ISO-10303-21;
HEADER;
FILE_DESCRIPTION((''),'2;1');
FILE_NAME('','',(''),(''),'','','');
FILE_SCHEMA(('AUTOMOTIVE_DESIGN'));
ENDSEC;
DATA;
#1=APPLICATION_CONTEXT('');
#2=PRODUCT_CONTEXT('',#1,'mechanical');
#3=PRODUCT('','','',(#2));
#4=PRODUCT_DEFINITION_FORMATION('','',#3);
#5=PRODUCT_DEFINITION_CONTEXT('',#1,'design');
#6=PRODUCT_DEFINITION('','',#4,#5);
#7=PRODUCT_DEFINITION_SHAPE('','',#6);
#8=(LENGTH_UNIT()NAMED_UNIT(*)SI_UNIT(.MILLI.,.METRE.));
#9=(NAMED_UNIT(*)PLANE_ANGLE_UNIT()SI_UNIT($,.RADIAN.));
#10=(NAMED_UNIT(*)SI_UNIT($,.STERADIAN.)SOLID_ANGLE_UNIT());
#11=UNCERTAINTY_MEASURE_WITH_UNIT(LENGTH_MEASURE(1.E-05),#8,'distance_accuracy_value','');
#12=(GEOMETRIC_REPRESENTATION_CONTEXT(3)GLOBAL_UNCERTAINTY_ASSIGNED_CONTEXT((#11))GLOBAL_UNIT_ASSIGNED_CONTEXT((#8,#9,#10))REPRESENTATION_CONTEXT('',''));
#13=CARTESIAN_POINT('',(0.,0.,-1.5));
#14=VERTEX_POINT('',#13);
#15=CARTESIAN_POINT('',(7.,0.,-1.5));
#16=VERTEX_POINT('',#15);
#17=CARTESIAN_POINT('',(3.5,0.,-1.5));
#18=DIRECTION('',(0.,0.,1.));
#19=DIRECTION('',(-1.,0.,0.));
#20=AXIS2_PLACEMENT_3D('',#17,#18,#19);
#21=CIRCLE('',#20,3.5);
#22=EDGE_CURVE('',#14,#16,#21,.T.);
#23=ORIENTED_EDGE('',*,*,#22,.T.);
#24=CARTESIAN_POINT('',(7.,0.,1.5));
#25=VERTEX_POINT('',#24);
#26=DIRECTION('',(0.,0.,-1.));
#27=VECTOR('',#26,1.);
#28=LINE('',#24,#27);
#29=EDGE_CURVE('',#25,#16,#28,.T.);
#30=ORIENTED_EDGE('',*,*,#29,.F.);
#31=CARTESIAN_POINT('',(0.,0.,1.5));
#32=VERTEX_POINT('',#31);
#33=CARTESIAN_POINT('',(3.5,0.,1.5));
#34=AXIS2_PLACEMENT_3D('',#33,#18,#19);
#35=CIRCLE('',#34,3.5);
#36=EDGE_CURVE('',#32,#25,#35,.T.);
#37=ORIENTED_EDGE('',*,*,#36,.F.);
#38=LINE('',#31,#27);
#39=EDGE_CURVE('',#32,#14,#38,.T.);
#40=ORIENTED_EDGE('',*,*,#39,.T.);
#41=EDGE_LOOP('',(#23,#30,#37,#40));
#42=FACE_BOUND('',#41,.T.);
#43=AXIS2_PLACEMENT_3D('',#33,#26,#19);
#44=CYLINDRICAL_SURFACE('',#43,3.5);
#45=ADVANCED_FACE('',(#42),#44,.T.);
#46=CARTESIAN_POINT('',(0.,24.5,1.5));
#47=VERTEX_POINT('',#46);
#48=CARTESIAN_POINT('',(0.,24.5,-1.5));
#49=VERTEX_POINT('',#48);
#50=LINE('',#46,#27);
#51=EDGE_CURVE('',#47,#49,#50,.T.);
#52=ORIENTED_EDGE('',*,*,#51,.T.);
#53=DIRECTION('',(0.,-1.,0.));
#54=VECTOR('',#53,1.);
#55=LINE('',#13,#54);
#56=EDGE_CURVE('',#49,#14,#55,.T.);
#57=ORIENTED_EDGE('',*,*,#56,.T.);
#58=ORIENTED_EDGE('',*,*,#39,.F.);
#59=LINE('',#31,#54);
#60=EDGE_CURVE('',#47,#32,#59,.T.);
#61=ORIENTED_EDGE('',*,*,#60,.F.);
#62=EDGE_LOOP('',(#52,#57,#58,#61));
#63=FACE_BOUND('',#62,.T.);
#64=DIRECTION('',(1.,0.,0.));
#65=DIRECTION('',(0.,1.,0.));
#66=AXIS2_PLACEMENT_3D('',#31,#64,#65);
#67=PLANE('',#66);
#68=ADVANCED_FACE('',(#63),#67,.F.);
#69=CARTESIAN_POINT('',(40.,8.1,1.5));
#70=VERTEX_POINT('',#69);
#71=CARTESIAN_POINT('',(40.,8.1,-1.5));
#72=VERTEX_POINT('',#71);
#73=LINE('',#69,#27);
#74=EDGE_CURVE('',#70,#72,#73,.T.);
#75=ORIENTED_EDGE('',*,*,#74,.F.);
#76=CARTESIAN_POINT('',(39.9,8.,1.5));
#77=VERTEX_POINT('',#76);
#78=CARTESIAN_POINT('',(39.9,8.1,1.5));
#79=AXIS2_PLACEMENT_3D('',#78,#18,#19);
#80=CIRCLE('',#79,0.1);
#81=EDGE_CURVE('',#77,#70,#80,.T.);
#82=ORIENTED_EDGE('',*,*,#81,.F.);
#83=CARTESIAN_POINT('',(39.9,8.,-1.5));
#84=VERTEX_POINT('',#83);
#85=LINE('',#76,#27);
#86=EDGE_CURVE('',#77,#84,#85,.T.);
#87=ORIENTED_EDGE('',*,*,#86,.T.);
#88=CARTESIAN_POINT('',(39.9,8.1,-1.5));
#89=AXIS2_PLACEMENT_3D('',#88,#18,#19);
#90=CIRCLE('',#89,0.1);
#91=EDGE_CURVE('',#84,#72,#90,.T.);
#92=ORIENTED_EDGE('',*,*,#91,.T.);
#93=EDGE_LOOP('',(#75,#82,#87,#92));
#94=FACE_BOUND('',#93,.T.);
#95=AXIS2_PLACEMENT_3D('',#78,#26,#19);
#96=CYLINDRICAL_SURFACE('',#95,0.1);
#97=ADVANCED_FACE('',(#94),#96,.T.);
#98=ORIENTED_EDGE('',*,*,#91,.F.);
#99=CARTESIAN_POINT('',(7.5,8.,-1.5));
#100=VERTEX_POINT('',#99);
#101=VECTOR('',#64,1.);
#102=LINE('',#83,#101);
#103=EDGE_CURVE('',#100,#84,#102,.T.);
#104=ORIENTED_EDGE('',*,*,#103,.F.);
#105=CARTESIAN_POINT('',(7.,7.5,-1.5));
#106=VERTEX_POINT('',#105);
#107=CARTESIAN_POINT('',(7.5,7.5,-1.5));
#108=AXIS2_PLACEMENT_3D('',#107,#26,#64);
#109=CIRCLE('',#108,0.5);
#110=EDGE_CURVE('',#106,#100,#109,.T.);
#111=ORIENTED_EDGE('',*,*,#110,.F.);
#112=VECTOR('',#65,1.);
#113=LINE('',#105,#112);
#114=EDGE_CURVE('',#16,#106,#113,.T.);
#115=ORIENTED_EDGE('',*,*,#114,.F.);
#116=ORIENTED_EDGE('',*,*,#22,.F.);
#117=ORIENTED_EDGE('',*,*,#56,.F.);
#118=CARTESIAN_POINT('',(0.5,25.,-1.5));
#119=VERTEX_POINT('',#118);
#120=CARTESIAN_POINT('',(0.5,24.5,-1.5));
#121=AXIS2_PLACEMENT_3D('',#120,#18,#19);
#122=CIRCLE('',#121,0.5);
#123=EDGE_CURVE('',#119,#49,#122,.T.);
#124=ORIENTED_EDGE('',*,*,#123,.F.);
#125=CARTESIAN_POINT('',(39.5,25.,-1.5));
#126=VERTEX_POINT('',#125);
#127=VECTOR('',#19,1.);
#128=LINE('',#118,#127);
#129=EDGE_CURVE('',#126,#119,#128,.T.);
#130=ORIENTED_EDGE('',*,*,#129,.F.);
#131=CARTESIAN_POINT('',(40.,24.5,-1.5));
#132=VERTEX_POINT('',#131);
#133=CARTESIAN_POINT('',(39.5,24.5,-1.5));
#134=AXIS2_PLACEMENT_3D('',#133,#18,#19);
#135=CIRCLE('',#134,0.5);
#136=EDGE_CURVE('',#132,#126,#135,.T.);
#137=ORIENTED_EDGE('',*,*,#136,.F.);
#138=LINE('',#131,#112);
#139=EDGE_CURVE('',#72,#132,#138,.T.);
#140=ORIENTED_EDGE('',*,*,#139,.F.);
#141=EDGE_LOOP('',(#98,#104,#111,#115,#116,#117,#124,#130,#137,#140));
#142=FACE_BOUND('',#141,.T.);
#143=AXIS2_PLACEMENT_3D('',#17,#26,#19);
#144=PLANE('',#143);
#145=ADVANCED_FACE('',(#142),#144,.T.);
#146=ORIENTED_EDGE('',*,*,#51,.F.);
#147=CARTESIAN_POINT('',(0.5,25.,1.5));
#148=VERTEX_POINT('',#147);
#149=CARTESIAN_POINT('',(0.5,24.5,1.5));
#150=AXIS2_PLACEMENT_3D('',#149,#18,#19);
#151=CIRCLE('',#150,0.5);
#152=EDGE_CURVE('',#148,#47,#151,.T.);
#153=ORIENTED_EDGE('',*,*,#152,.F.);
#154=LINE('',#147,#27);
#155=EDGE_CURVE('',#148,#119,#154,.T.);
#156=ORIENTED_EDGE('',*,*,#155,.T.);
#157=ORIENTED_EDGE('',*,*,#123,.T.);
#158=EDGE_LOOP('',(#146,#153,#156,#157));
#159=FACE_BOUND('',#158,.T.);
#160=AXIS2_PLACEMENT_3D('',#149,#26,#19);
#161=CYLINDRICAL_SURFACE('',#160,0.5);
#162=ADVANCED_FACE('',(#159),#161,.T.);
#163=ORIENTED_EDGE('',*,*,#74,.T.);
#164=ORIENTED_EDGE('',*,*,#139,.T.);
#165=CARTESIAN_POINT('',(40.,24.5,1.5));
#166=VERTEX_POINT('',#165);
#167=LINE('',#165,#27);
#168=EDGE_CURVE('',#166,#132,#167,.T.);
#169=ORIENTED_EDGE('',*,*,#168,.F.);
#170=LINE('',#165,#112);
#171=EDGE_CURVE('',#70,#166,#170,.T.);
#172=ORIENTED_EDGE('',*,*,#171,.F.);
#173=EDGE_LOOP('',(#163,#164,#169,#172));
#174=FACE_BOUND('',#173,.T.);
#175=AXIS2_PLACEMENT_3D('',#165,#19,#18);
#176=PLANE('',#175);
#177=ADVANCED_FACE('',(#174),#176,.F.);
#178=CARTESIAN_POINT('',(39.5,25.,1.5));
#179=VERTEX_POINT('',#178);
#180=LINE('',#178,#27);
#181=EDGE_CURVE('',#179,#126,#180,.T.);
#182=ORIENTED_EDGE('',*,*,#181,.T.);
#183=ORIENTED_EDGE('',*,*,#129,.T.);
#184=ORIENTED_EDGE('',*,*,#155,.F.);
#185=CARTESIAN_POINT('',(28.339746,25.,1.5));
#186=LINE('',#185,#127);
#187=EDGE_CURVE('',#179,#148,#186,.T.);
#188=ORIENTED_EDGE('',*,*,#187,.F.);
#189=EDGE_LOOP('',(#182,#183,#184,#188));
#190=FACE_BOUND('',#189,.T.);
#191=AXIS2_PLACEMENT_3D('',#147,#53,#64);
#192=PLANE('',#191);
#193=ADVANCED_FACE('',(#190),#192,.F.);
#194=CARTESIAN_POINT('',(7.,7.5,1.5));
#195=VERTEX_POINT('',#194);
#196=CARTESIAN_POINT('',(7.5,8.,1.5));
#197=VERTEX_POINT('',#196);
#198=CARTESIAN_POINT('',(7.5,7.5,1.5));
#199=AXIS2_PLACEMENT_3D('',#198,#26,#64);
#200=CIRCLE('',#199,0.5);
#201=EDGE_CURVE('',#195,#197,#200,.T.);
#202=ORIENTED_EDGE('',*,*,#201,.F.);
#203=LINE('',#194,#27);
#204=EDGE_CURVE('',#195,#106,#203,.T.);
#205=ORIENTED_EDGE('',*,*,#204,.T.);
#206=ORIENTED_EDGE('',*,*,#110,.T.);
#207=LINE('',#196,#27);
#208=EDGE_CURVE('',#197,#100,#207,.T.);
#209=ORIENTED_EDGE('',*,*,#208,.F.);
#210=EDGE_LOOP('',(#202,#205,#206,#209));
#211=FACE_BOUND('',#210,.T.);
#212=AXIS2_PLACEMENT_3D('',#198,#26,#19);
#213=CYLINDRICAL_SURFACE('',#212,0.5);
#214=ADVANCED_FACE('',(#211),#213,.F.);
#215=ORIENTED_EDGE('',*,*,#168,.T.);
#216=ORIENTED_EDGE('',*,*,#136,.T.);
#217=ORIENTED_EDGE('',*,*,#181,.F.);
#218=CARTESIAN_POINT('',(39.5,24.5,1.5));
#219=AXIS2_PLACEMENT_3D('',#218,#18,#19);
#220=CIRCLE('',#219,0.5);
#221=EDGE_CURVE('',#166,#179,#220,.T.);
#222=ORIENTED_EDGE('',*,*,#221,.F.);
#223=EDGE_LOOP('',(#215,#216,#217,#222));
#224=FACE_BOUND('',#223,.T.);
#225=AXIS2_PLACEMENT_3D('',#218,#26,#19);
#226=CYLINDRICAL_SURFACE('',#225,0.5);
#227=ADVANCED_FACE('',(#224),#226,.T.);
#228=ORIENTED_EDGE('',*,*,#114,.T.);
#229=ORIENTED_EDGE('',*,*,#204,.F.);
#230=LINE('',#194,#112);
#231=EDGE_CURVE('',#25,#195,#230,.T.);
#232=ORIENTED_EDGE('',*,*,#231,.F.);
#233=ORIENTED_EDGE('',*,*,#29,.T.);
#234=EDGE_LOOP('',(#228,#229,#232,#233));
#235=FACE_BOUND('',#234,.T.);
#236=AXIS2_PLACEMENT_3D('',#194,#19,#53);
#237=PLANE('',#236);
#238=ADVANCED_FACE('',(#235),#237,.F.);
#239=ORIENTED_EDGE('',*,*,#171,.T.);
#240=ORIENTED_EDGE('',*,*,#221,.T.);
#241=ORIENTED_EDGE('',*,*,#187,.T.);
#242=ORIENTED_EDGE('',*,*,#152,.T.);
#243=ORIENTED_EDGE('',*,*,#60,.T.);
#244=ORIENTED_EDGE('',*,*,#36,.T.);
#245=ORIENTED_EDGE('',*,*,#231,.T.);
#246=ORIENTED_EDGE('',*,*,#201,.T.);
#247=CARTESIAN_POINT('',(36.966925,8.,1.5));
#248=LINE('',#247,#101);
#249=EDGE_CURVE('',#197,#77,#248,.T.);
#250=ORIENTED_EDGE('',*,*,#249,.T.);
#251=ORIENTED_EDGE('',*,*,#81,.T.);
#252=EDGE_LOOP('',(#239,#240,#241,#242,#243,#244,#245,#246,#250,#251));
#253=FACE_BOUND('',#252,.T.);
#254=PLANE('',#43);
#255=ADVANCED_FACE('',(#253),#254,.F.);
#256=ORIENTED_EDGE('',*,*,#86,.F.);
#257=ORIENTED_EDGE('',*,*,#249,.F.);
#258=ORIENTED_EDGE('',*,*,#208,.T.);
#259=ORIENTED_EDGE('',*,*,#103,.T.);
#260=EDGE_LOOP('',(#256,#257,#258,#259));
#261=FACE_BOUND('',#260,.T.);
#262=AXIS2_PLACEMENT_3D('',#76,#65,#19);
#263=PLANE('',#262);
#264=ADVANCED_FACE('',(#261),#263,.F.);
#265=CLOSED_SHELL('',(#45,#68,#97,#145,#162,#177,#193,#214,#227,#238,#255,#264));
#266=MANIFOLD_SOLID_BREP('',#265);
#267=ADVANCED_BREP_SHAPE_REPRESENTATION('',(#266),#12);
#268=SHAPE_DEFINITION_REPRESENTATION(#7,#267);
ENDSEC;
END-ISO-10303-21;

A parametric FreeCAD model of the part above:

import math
import FreeCAD as App
import Part
import Sketcher

V = App.Vector
Q = App.Units.Quantity

doc = App.newDocument("Part")
body = doc.addObject("PartDesign::Body", "Body")

# Sketch on XY plane
sketch1 = body.newObject("Sketcher::SketchObject", "Sketch")
sketch1.AttachmentSupport = (doc.getObject("XY_Plane"), [""])
sketch1.MapMode = "FlatFace"
sketch1.addGeometry([
    Part.LineSegment(V(0, 24.5, 0), V(0, 0, 0)),  # 0
    Part.ArcOfCircle(Part.Circle(V(3.5, 0, 0), V(0, 0, 1), 3.5), math.radians(180), math.radians(360)),  # 1
    Part.LineSegment(V(7, 0, 0), V(7, 7.5, 0)),  # 2
    Part.ArcOfCircle(Part.Circle(V(7.5, 7.5, 0), V(0, 0, 1), 0.5), math.radians(90), math.radians(180)),  # 3
    Part.LineSegment(V(7.5, 8, 0), V(39.9, 8, 0)),  # 4
    Part.ArcOfCircle(Part.Circle(V(39.9, 8.1, 0), V(0, 0, 1), 0.1), math.radians(-90), math.radians(0)),  # 5
    Part.LineSegment(V(40, 8.1, 0), V(40, 24.5, 0)),  # 6
    Part.ArcOfCircle(Part.Circle(V(39.5, 24.5, 0), V(0, 0, 1), 0.5), math.radians(0), math.radians(90)),  # 7
    Part.LineSegment(V(39.5, 25, 0), V(0.5, 25, 0)),  # 8
    Part.ArcOfCircle(Part.Circle(V(0.5, 24.5, 0), V(0, 0, 1), 0.5), math.radians(90), math.radians(180)),  # 9
], False)
sketch1.addConstraint([
    Sketcher.Constraint("Tangent", 0, 2, 1, 1),
    Sketcher.Constraint("Tangent", 1, 2, 2, 1),
    Sketcher.Constraint("Tangent", 2, 2, 3, 2),
    Sketcher.Constraint("Tangent", 3, 1, 4, 1),
    Sketcher.Constraint("Tangent", 4, 2, 5, 1),
    Sketcher.Constraint("Tangent", 5, 2, 6, 1),
    Sketcher.Constraint("Tangent", 6, 2, 7, 1),
    Sketcher.Constraint("Tangent", 7, 2, 8, 1),
    Sketcher.Constraint("Tangent", 8, 2, 9, 1),
    Sketcher.Constraint("Tangent", 9, 2, 0, 1),
    Sketcher.Constraint("Vertical", 0),
    Sketcher.Constraint("Vertical", 2),
    Sketcher.Constraint("Horizontal", 4),
    Sketcher.Constraint("Vertical", 6),
    Sketcher.Constraint("Horizontal", 8),
    Sketcher.Constraint("Coincident", 0, 2, -1, 1),
    Sketcher.Constraint("Equal", 3, 7),
    Sketcher.Constraint("Equal", 7, 9),
    Sketcher.Constraint("Radius", 1, Q("3.5 mm")),
    Sketcher.Constraint("Radius", 3, Q("0.5 mm")),
    Sketcher.Constraint("Radius", 5, Q("0.1 mm")),
    Sketcher.Constraint("DistanceX", 8, 2, 8, 1, Q("39 mm")),
    Sketcher.Constraint("DistanceY", 0, 2, 0, 1, Q("24.5 mm")),
    Sketcher.Constraint("DistanceY", 2, 1, 2, 2, Q("7.5 mm")),
])
pad1 = body.newObject("PartDesign::Pad", "Pad")
pad1.Profile = sketch1
pad1.Length = 3
pad1.Midplane = True

doc.recompute()
